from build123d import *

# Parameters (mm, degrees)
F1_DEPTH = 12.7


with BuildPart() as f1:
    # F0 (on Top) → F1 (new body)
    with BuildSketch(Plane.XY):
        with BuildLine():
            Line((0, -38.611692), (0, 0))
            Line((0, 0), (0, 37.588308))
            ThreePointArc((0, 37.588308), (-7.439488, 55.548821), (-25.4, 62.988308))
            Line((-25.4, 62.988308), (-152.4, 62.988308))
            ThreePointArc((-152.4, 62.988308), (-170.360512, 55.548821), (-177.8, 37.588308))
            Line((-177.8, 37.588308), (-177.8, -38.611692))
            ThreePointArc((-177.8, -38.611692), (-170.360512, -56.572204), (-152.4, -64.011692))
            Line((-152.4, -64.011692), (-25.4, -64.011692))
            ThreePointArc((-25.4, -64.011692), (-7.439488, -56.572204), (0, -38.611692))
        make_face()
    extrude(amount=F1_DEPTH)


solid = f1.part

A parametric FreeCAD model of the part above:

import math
import FreeCAD as App
import Part
import Sketcher

V = App.Vector
Q = App.Units.Quantity

doc = App.newDocument("Part")
body = doc.addObject("PartDesign::Body", "Body")

# Sketch on XY plane
sketch1 = doc.addObject("Sketcher::SketchObject", "Sketch")
body.addObject(sketch1)
sketch1.AttachmentSupport = (doc.XY_Plane, [""])
sketch1.MapMode = "FlatFace"
sketch1.addGeometry(Part.LineSegment(V(0, -39, 0), V(0, 38, 0)), False)
sketch1.addGeometry(Part.ArcOfCircle(Part.Circle(V(-25, 38, 0), V(0, 0, 1), 25), math.radians(0), math.radians(90)), False)
sketch1.addGeometry(Part.LineSegment(V(-25, 63, 0), V(-152, 63, 0)), False)
sketch1.addGeometry(Part.ArcOfCircle(Part.Circle(V(-152, 38, 0), V(0, 0, 1), 25), math.radians(90), math.radians(180)), False)
sketch1.addGeometry(Part.LineSegment(V(-178, 38, 0), V(-178, -39, 0)), False)
sketch1.addGeometry(Part.ArcOfCircle(Part.Circle(V(-152, -39, 0), V(0, 0, 1), 25), math.radians(-180), math.radians(-90)), False)
sketch1.addGeometry(Part.LineSegment(V(-152, -64, 0), V(-25, -64, 0)), False)
sketch1.addGeometry(Part.ArcOfCircle(Part.Circle(V(-25, -39, 0), V(0, 0, 1), 25), math.radians(-90), math.radians(0)), False)
sketch1.addConstraint(Sketcher.Constraint("Tangent", 0, 2, 1, 1))
sketch1.addConstraint(Sketcher.Constraint("Tangent", 1, 2, 2, 1))
sketch1.addConstraint(Sketcher.Constraint("Tangent", 2, 2, 3, 1))
sketch1.addConstraint(Sketcher.Constraint("Tangent", 3, 2, 4, 1))
sketch1.addConstraint(Sketcher.Constraint("Tangent", 4, 2, 5, 1))
sketch1.addConstraint(Sketcher.Constraint("Tangent", 5, 2, 6, 1))
sketch1.addConstraint(Sketcher.Constraint("Tangent", 6, 2, 7, 1))
sketch1.addConstraint(Sketcher.Constraint("Tangent", 7, 2, 0, 1))
sketch1.addConstraint(Sketcher.Constraint("Vertical", 0))
sketch1.addConstraint(Sketcher.Constraint("Horizontal", 2))
sketch1.addConstraint(Sketcher.Constraint("Vertical", 4))
sketch1.addConstraint(Sketcher.Constraint("Horizontal", 6))
sketch1.addConstraint(Sketcher.Constraint("Equal", 1, 3))
sketch1.addConstraint(Sketcher.Constraint("Equal", 3, 5))
sketch1.addConstraint(Sketcher.Constraint("Equal", 5, 7))
sketch1.addConstraint(Sketcher.Constraint("PointOnObject", 0, 2, -2))
sketch1.addConstraint(Sketcher.Constraint("Radius", 1, Q("1 in")))
sketch1.addConstraint(Sketcher.Constraint("DistanceX", 2, 2, 2, 1, Q("5 in")))
sketch1.addConstraint(Sketcher.Constraint("DistanceY", 0, 1, 0, 2, Q("3 in")))
sketch1.addConstraint(Sketcher.Constraint("DistanceY", -1, 1, 1, 3, 37.588309))
pad1 = doc.addObject("PartDesign::Pad", "Pad")
body.addObject(pad1)
pad1.Profile = sketch1
pad1.Length = Q("0.5 in")

doc.recompute()
